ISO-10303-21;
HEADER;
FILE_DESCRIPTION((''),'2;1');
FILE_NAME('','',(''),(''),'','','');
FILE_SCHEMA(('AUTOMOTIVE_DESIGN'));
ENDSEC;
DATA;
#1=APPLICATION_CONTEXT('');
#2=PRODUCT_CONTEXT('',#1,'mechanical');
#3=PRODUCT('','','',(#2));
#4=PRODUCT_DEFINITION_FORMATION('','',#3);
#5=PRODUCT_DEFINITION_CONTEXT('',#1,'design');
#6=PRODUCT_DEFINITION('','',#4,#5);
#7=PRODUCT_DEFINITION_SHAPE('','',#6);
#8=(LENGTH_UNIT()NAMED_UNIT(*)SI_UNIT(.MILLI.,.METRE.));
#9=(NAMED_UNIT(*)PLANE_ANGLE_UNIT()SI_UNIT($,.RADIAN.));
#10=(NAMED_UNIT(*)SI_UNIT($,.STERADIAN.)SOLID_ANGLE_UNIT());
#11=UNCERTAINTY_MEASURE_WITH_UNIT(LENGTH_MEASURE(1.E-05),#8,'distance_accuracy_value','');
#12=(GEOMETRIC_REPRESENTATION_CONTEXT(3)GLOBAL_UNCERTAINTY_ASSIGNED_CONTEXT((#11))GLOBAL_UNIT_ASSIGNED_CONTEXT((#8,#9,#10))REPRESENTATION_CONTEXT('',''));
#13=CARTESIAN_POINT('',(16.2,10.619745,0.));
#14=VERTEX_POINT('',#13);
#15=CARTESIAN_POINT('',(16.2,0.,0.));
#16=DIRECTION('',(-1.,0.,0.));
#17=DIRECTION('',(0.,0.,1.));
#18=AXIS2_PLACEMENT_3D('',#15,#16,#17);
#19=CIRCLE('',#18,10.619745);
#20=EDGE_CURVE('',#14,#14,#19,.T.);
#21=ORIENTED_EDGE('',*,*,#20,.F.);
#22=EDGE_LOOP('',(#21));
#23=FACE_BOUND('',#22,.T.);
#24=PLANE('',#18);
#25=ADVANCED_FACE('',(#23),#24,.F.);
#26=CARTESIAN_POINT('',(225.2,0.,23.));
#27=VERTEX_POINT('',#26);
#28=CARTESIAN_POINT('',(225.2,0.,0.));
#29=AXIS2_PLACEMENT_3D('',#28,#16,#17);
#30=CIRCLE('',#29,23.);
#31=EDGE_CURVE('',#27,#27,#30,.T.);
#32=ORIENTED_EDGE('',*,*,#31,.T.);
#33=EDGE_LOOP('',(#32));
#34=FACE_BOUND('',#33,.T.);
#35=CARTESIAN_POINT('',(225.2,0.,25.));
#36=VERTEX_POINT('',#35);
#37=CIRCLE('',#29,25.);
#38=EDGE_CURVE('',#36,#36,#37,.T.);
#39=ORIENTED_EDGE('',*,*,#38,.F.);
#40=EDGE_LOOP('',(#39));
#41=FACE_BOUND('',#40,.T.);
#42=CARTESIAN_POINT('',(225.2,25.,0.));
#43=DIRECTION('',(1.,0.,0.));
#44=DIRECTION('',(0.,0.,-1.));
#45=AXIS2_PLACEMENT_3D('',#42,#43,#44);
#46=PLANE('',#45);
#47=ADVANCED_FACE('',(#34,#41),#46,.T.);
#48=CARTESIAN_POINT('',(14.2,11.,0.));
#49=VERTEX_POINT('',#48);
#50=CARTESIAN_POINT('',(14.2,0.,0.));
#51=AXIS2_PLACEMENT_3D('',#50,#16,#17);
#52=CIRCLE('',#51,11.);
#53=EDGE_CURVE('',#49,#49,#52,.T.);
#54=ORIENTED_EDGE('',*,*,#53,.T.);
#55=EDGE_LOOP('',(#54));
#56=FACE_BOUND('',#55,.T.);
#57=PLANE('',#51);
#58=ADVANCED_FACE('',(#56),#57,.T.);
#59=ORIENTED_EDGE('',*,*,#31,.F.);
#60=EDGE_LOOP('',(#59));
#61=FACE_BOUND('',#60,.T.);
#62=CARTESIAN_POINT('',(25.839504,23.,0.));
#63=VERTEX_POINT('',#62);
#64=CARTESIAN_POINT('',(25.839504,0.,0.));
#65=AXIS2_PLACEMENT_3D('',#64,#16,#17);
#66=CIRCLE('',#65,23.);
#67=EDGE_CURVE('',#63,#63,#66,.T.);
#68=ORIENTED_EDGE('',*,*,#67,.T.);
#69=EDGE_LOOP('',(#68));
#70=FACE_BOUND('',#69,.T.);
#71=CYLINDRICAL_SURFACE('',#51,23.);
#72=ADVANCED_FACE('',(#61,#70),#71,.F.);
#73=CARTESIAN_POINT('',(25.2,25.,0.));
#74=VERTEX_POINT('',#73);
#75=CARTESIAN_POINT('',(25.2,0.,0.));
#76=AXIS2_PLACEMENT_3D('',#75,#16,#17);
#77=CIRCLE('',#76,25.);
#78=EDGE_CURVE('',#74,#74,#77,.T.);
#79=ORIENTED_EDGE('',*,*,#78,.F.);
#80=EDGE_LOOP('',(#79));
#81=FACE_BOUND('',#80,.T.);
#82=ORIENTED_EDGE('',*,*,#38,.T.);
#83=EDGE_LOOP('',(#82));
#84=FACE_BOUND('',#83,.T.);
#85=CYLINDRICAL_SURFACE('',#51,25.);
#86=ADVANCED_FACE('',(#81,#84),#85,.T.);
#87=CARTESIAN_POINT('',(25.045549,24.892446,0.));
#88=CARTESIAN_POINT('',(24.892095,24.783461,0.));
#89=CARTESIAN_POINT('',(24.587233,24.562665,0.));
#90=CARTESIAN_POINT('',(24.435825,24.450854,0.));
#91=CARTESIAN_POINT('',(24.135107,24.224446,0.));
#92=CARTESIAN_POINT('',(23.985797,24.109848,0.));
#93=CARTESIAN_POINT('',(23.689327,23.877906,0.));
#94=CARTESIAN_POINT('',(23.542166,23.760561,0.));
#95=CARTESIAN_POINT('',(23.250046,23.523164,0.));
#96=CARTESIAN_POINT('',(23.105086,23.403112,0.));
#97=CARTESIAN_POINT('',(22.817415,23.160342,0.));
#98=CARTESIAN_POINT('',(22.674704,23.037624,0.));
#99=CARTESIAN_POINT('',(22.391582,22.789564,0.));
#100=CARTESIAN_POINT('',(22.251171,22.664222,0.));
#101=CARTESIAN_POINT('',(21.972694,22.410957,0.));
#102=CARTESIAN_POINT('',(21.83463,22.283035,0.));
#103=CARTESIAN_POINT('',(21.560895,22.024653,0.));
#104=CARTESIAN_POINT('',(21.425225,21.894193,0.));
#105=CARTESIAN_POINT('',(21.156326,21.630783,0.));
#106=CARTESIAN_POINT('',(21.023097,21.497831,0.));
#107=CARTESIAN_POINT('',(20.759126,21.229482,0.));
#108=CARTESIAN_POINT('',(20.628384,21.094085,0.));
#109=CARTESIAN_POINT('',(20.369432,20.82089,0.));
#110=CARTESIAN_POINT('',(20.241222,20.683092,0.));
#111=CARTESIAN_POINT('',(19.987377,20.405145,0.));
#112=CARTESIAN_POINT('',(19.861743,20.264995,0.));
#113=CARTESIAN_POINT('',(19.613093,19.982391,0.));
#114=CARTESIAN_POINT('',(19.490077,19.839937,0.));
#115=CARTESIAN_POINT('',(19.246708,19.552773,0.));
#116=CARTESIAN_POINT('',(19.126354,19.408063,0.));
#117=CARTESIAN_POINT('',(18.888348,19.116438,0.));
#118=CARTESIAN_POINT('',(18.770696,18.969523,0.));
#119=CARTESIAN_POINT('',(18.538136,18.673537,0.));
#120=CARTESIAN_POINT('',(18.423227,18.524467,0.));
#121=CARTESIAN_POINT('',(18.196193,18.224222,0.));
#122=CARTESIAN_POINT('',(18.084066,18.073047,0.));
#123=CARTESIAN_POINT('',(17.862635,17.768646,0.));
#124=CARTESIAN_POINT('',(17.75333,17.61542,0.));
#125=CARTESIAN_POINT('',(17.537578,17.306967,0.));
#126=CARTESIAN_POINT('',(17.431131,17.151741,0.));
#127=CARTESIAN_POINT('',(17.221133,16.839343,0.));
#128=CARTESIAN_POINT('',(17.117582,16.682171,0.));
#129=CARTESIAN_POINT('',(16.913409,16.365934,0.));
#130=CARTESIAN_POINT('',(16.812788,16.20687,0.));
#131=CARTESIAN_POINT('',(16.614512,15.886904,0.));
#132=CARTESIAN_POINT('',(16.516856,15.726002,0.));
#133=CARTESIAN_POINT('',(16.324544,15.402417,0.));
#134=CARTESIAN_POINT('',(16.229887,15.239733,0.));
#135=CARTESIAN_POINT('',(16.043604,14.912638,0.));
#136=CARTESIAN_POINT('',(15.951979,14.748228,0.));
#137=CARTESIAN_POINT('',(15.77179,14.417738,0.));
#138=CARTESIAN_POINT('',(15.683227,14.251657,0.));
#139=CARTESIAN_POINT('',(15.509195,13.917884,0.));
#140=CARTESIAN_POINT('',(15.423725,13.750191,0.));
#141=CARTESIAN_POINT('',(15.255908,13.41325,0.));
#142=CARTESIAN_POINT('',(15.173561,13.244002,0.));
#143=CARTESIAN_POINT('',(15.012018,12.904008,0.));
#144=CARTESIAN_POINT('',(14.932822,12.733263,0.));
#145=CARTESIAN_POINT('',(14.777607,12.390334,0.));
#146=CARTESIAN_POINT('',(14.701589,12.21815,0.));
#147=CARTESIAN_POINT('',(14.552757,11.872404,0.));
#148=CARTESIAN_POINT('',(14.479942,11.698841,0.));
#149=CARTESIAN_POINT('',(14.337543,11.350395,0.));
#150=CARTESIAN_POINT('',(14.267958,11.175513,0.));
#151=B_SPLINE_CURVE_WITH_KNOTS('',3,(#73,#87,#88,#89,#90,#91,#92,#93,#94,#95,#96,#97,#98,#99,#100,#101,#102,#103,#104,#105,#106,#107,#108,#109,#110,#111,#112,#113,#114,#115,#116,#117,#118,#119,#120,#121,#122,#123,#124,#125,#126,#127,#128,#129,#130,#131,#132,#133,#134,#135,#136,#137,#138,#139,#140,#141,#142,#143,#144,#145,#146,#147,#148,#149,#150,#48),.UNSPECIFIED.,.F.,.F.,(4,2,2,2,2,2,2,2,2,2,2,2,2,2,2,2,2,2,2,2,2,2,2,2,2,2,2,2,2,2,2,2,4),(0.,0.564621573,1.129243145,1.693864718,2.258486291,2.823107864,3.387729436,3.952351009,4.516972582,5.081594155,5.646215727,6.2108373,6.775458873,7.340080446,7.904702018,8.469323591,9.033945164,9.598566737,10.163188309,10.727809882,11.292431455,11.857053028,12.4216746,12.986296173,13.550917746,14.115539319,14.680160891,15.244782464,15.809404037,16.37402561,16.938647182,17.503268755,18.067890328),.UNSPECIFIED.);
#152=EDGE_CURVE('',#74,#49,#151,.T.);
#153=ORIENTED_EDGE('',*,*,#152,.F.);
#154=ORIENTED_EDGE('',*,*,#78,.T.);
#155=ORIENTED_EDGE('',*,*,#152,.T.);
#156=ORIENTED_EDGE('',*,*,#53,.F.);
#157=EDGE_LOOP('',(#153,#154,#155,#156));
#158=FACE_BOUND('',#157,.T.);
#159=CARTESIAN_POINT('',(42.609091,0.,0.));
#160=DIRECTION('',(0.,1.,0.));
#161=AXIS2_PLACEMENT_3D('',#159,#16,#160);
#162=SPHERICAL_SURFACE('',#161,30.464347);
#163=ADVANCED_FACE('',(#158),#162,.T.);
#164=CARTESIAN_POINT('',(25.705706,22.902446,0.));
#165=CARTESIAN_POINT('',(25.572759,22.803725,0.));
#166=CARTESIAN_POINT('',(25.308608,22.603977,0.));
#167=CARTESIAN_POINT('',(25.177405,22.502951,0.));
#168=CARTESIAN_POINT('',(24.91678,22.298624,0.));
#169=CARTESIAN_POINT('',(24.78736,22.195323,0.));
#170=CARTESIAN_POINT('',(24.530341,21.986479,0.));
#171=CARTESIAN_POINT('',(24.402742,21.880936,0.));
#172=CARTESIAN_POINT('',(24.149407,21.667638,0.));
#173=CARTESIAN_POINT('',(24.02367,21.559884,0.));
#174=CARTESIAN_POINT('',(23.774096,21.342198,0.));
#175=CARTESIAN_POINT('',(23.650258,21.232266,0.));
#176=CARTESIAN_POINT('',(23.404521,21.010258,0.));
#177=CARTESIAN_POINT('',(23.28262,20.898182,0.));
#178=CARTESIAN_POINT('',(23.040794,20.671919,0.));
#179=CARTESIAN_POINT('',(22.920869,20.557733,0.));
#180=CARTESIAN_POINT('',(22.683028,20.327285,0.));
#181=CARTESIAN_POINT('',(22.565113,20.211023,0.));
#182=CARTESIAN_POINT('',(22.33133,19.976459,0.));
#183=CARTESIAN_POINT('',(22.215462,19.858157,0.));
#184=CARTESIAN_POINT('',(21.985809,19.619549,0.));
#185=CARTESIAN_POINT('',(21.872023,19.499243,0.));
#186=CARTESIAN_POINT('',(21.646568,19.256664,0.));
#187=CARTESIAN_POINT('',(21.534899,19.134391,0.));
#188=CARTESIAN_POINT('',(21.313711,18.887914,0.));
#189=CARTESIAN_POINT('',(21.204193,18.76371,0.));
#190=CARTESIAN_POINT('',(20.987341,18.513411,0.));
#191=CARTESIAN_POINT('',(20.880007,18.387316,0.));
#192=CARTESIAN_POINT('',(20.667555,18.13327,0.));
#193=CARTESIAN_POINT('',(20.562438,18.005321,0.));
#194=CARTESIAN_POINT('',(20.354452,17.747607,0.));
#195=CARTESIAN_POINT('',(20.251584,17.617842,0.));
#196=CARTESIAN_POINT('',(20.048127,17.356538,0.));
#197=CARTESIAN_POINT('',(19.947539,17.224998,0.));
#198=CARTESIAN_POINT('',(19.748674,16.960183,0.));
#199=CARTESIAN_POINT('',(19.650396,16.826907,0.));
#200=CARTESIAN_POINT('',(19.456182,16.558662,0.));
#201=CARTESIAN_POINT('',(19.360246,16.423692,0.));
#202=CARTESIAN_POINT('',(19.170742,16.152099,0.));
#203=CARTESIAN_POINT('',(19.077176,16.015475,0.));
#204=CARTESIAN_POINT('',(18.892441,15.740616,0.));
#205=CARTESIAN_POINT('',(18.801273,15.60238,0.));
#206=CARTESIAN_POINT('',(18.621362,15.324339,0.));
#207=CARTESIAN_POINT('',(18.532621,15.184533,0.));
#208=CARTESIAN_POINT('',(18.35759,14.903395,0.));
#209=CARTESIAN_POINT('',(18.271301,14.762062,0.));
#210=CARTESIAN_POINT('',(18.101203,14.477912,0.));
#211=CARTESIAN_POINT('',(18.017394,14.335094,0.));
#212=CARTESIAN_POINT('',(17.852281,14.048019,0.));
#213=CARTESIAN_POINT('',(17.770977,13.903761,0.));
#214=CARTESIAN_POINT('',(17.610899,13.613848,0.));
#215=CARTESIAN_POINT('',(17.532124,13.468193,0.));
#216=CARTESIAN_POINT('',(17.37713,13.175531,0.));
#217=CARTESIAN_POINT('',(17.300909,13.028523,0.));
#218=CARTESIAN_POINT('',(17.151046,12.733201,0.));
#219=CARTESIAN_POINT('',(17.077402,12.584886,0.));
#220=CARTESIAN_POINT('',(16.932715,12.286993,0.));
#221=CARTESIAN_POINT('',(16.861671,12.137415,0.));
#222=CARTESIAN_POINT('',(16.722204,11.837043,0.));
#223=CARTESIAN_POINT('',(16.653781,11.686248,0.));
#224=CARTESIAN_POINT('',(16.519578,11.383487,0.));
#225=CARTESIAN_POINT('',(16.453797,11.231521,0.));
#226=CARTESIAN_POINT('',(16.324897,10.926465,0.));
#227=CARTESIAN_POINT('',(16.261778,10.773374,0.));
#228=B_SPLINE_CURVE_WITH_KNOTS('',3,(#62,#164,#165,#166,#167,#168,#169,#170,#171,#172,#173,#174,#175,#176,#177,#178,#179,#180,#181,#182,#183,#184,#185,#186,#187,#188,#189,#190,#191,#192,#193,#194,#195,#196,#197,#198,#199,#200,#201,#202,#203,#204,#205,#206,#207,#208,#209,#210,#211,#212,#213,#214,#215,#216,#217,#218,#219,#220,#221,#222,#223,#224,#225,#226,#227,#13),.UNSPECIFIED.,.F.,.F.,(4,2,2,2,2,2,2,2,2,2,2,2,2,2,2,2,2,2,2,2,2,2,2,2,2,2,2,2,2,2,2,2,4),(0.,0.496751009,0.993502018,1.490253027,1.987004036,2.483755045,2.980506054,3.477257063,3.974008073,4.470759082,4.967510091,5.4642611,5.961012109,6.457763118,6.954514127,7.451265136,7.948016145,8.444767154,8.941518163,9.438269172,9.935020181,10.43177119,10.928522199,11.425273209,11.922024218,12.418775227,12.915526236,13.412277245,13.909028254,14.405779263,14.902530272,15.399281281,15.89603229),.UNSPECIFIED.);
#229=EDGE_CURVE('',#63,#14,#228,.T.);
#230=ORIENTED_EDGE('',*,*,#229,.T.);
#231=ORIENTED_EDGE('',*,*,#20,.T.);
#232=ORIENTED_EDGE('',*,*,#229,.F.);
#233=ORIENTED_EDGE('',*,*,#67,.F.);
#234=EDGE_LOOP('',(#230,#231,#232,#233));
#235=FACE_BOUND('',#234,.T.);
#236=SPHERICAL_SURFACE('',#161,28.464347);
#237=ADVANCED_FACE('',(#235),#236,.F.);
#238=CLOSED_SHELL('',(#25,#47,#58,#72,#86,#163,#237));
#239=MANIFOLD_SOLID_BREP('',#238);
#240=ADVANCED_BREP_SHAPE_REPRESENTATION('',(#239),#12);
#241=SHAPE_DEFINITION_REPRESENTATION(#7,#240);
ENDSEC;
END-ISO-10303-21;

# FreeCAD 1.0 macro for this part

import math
import FreeCAD as App
import Part
import Sketcher
from FreeCAD import Vector

doc = App.newDocument("Part")
body = doc.addObject("PartDesign::Body", "Body")

sketch1 = body.newObject("Sketcher::SketchObject", "Sketch")
sketch1.AttachmentSupport = (doc.getObject("XY_Plane"), [""])
sketch1.MapMode = "FlatFace"
sketch1.addGeometry([
    Part.LineSegment(Vector(14.2, 11, 0), Vector(14.2, 0, 0)),
    Part.LineSegment(Vector(14.2, 0, 0), Vector(16.2, 0, 0)),
    Part.LineSegment(Vector(16.2, 0, 0), Vector(16.2, 10.619745, 0)),
    Part.ArcOfCircle(Part.Circle(Vector(42.609091, 0, 0), Vector(0, 0, 1), 28.464347), math.radians(126.096257), math.radians(158.093728)),
    Part.LineSegment(Vector(25.839504, 23, 0), Vector(225.2, 23, 0)),
    Part.LineSegment(Vector(225.2, 23, 0), Vector(225.2, 25, 0)),
    Part.LineSegment(Vector(225.2, 25, 0), Vector(25.2, 25, 0)),
    Part.ArcOfCircle(Part.Circle(Vector(42.609091, 0, 0), Vector(0, 0, 1), 30.464347), math.radians(124.85195), math.radians(158.833597)),
], False)
sketch1.addConstraint([
    Sketcher.Constraint("Coincident", 0, 2, 1, 1),
    Sketcher.Constraint("Coincident", 1, 2, 2, 1),
    Sketcher.Constraint("Coincident", 2, 2, 3, 2),
    Sketcher.Constraint("Coincident", 3, 1, 4, 1),
    Sketcher.Constraint("Coincident", 4, 2, 5, 1),
    Sketcher.Constraint("Coincident", 5, 2, 6, 1),
    Sketcher.Constraint("Coincident", 6, 2, 7, 1),
    Sketcher.Constraint("Coincident", 7, 2, 0, 1),
    Sketcher.Constraint("Vertical", 0),
    Sketcher.Constraint("Horizontal", 1),
    Sketcher.Constraint("Vertical", 2),
    Sketcher.Constraint("Horizontal", 4),
    Sketcher.Constraint("Vertical", 5),
    Sketcher.Constraint("Horizontal", 6),
    Sketcher.Constraint("Coincident", 7, 3, 3, 3),
    Sketcher.Constraint("PointOnObject", 3, 3, -1),
    Sketcher.Constraint("PointOnObject", 0, 2, -1),
    Sketcher.Constraint("Equal", 1, 5),
    Sketcher.Constraint("DistanceX", 1, 1, 1, 2, 2.0),
    Sketcher.Constraint("DistanceX", 6, 2, 6, 1, 200.0),
    Sketcher.Constraint("DistanceY", 0, 2, 0, 1, 11.0),
    Sketcher.Constraint("DistanceY", -1, 1, 3, 1, 23.0),
    Sketcher.Constraint("DistanceX", 2, 2, 4, 2, 209.0),
    Sketcher.Constraint("DistanceX", -1, 1, 0, 2, 14.2),
    Sketcher.Constraint("Radius", 3, 28.464347),
])
revolution = body.newObject("PartDesign::Revolution", "Revolution")
revolution.Profile = sketch1
revolution.ReferenceAxis = (sketch1, ["H_Axis"])
revolution.Angle = 360

doc.recompute()
